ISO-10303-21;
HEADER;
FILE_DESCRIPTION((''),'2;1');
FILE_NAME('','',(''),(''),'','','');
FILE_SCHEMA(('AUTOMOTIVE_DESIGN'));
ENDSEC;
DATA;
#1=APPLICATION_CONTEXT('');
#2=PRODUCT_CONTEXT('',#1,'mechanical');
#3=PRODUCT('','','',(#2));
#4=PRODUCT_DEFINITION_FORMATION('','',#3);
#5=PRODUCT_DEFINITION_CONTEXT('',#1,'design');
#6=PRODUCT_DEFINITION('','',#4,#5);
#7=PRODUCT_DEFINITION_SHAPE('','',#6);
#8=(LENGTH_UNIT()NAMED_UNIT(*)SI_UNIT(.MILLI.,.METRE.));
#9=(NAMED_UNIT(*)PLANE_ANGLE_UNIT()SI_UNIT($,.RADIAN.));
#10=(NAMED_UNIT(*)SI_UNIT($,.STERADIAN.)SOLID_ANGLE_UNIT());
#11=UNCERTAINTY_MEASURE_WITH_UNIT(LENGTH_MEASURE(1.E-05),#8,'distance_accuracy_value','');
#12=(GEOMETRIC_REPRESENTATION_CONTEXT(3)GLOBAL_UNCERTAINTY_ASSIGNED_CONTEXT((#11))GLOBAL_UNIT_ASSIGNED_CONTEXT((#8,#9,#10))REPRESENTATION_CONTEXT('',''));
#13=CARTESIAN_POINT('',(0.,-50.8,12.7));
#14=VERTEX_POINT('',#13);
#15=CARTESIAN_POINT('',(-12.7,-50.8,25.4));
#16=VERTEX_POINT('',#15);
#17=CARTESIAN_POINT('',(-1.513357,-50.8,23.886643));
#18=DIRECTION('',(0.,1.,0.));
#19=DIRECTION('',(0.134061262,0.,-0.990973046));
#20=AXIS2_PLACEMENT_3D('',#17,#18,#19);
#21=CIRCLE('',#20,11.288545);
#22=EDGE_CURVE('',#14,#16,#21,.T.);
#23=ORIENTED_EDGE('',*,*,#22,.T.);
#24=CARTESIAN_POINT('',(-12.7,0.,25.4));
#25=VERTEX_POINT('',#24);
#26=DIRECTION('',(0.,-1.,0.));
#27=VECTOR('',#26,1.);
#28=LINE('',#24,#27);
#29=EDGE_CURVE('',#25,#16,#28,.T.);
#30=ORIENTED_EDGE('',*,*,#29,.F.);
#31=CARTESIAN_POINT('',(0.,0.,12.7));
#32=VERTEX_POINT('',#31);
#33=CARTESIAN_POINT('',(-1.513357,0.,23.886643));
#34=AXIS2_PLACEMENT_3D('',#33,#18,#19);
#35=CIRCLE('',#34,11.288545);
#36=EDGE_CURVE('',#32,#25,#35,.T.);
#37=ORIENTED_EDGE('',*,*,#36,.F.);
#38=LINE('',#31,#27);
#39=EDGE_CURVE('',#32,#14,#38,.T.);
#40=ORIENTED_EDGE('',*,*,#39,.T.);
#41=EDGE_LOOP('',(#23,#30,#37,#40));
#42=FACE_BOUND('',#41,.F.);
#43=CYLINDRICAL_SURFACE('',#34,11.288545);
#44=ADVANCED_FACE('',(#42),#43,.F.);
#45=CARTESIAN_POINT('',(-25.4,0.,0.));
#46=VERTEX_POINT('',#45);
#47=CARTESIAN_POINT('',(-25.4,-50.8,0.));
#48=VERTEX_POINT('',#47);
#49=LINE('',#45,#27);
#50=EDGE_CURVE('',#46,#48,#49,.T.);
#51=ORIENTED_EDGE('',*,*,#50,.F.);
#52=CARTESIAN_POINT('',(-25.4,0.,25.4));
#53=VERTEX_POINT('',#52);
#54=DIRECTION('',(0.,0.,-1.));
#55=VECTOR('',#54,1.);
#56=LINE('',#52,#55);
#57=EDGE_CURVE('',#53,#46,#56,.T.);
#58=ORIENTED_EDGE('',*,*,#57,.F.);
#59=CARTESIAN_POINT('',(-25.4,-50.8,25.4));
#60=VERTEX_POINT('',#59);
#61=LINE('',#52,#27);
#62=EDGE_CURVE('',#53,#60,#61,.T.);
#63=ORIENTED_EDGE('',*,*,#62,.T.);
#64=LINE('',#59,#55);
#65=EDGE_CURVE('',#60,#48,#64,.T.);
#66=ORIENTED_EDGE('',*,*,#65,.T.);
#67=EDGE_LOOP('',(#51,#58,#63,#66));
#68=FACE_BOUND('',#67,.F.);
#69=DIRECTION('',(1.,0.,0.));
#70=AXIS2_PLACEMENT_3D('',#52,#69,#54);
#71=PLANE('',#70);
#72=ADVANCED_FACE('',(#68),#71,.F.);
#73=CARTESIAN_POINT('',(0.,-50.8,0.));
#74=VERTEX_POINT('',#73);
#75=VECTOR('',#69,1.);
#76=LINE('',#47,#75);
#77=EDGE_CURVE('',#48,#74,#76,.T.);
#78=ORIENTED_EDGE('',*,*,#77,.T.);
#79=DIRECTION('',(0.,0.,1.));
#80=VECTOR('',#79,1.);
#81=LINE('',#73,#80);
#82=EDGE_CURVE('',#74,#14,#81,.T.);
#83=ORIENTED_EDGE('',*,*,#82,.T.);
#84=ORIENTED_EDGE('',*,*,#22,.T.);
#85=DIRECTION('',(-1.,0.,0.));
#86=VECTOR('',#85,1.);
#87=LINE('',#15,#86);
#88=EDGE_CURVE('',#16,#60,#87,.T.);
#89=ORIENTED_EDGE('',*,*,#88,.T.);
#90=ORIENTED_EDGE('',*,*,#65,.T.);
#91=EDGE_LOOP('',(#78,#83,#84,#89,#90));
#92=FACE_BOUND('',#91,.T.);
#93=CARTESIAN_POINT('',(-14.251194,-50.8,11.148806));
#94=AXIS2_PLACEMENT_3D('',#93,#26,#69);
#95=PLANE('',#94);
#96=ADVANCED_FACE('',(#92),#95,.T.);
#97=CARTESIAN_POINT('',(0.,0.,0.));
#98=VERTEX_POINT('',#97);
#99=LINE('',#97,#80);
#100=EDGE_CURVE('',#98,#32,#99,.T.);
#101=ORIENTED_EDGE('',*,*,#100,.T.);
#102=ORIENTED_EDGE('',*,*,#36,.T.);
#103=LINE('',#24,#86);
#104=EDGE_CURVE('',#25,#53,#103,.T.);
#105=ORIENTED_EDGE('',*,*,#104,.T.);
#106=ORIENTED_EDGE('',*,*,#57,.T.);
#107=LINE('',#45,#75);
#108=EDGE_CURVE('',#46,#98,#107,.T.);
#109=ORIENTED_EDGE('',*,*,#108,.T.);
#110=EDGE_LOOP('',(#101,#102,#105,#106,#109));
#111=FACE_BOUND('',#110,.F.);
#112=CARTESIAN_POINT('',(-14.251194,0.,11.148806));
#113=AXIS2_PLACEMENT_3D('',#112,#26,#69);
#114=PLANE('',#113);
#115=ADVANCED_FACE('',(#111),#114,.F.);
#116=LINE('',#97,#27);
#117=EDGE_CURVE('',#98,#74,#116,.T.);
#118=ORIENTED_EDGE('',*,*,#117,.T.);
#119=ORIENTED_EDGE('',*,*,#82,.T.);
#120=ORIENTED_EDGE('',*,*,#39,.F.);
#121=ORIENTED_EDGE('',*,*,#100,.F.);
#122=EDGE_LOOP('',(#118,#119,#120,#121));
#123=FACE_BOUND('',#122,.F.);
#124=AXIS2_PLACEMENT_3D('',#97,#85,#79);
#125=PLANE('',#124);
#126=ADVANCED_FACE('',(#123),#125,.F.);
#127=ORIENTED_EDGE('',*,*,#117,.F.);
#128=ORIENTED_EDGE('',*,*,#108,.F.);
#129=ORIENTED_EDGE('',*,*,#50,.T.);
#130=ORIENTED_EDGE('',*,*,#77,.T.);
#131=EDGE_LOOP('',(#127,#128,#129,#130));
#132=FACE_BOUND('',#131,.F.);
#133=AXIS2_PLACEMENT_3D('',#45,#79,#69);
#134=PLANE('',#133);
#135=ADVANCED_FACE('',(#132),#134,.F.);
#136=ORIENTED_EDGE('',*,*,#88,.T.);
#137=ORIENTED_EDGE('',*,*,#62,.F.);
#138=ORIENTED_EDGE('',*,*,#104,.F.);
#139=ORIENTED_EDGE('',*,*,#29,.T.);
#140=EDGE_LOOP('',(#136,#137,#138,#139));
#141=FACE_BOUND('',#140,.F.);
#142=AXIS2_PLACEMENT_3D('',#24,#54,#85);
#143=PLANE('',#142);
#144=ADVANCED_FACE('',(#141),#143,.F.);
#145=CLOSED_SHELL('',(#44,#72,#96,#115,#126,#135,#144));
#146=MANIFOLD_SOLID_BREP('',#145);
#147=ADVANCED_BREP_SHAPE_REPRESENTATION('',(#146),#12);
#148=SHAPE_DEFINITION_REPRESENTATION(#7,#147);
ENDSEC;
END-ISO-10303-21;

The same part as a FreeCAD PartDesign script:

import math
import FreeCAD as App
import Part
import Sketcher
from FreeCAD import Vector
Q = App.Units.Quantity

doc = App.newDocument("Part")
params = doc.addObject("Spreadsheet::Sheet", "Params")
for row, (alias, value) in enumerate([
    ("sketch1_width", "1 in"),
    ("sketch1_width2", "0.5 in"),
    ("pad1_length", "2 in"),
], start=1):
    params.set(f"A{row}", alias)
    params.set(f"B{row}", "=" + value)
    params.setAlias(f"B{row}", alias)

body = doc.addObject("PartDesign::Body", "Body")

# Sketch on XZ plane
sketch1 = body.newObject("Sketcher::SketchObject", "Sketch")
sketch1.AttachmentSupport = (doc.getObject("XZ_Plane"), [""])
sketch1.MapMode = "FlatFace"
sketch1.addGeometry([
    Part.LineSegment(Vector(-25, 0, 0), Vector(0, 0, 0)),  # 0
    Part.LineSegment(Vector(0, 0, 0), Vector(0, 13, 0)),  # 1
    Part.ArcOfCircle(Part.Circle(Vector(-2, 24, 0), Vector(0, 0, 1), 11), math.radians(172), math.radians(278)),  # 2
    Part.LineSegment(Vector(-13, 25, 0), Vector(-25, 25, 0)),  # 3
    Part.LineSegment(Vector(-25, 25, 0), Vector(-25, 0, 0)),  # 4
], False)
sketch1.addConstraint([
    Sketcher.Constraint("Coincident", 0, 2, 1, 1),
    Sketcher.Constraint("Coincident", 1, 2, 2, 2),
    Sketcher.Constraint("Coincident", 2, 1, 3, 1),
    Sketcher.Constraint("Coincident", 3, 2, 4, 1),
    Sketcher.Constraint("Coincident", 4, 2, 0, 1),
    Sketcher.Constraint("Horizontal", 0),
    Sketcher.Constraint("Vertical", 1),
    Sketcher.Constraint("Horizontal", 3),
    Sketcher.Constraint("Vertical", 4),
    Sketcher.Constraint("Coincident", 0, 2, -1, 1),
    Sketcher.Constraint("Equal", 3, 1),
    Sketcher.Constraint("Equal", 0, 4),
    Sketcher.Constraint("DistanceX", 0, 1, 0, 2, Q("1 in")),
    Sketcher.Constraint("DistanceX", 3, 2, 3, 1, Q("0.5 in")),
    Sketcher.Constraint("Radius", 2, Q("11.288545 mm")),
])
sketch1.setExpression("Constraints[12]", "Params.sketch1_width")
sketch1.setExpression("Constraints[13]", "Params.sketch1_width2")
pad1 = body.newObject("PartDesign::Pad", "Pad")
pad1.Profile = sketch1
pad1.setExpression("Length", "Params.pad1_length")

doc.recompute()
